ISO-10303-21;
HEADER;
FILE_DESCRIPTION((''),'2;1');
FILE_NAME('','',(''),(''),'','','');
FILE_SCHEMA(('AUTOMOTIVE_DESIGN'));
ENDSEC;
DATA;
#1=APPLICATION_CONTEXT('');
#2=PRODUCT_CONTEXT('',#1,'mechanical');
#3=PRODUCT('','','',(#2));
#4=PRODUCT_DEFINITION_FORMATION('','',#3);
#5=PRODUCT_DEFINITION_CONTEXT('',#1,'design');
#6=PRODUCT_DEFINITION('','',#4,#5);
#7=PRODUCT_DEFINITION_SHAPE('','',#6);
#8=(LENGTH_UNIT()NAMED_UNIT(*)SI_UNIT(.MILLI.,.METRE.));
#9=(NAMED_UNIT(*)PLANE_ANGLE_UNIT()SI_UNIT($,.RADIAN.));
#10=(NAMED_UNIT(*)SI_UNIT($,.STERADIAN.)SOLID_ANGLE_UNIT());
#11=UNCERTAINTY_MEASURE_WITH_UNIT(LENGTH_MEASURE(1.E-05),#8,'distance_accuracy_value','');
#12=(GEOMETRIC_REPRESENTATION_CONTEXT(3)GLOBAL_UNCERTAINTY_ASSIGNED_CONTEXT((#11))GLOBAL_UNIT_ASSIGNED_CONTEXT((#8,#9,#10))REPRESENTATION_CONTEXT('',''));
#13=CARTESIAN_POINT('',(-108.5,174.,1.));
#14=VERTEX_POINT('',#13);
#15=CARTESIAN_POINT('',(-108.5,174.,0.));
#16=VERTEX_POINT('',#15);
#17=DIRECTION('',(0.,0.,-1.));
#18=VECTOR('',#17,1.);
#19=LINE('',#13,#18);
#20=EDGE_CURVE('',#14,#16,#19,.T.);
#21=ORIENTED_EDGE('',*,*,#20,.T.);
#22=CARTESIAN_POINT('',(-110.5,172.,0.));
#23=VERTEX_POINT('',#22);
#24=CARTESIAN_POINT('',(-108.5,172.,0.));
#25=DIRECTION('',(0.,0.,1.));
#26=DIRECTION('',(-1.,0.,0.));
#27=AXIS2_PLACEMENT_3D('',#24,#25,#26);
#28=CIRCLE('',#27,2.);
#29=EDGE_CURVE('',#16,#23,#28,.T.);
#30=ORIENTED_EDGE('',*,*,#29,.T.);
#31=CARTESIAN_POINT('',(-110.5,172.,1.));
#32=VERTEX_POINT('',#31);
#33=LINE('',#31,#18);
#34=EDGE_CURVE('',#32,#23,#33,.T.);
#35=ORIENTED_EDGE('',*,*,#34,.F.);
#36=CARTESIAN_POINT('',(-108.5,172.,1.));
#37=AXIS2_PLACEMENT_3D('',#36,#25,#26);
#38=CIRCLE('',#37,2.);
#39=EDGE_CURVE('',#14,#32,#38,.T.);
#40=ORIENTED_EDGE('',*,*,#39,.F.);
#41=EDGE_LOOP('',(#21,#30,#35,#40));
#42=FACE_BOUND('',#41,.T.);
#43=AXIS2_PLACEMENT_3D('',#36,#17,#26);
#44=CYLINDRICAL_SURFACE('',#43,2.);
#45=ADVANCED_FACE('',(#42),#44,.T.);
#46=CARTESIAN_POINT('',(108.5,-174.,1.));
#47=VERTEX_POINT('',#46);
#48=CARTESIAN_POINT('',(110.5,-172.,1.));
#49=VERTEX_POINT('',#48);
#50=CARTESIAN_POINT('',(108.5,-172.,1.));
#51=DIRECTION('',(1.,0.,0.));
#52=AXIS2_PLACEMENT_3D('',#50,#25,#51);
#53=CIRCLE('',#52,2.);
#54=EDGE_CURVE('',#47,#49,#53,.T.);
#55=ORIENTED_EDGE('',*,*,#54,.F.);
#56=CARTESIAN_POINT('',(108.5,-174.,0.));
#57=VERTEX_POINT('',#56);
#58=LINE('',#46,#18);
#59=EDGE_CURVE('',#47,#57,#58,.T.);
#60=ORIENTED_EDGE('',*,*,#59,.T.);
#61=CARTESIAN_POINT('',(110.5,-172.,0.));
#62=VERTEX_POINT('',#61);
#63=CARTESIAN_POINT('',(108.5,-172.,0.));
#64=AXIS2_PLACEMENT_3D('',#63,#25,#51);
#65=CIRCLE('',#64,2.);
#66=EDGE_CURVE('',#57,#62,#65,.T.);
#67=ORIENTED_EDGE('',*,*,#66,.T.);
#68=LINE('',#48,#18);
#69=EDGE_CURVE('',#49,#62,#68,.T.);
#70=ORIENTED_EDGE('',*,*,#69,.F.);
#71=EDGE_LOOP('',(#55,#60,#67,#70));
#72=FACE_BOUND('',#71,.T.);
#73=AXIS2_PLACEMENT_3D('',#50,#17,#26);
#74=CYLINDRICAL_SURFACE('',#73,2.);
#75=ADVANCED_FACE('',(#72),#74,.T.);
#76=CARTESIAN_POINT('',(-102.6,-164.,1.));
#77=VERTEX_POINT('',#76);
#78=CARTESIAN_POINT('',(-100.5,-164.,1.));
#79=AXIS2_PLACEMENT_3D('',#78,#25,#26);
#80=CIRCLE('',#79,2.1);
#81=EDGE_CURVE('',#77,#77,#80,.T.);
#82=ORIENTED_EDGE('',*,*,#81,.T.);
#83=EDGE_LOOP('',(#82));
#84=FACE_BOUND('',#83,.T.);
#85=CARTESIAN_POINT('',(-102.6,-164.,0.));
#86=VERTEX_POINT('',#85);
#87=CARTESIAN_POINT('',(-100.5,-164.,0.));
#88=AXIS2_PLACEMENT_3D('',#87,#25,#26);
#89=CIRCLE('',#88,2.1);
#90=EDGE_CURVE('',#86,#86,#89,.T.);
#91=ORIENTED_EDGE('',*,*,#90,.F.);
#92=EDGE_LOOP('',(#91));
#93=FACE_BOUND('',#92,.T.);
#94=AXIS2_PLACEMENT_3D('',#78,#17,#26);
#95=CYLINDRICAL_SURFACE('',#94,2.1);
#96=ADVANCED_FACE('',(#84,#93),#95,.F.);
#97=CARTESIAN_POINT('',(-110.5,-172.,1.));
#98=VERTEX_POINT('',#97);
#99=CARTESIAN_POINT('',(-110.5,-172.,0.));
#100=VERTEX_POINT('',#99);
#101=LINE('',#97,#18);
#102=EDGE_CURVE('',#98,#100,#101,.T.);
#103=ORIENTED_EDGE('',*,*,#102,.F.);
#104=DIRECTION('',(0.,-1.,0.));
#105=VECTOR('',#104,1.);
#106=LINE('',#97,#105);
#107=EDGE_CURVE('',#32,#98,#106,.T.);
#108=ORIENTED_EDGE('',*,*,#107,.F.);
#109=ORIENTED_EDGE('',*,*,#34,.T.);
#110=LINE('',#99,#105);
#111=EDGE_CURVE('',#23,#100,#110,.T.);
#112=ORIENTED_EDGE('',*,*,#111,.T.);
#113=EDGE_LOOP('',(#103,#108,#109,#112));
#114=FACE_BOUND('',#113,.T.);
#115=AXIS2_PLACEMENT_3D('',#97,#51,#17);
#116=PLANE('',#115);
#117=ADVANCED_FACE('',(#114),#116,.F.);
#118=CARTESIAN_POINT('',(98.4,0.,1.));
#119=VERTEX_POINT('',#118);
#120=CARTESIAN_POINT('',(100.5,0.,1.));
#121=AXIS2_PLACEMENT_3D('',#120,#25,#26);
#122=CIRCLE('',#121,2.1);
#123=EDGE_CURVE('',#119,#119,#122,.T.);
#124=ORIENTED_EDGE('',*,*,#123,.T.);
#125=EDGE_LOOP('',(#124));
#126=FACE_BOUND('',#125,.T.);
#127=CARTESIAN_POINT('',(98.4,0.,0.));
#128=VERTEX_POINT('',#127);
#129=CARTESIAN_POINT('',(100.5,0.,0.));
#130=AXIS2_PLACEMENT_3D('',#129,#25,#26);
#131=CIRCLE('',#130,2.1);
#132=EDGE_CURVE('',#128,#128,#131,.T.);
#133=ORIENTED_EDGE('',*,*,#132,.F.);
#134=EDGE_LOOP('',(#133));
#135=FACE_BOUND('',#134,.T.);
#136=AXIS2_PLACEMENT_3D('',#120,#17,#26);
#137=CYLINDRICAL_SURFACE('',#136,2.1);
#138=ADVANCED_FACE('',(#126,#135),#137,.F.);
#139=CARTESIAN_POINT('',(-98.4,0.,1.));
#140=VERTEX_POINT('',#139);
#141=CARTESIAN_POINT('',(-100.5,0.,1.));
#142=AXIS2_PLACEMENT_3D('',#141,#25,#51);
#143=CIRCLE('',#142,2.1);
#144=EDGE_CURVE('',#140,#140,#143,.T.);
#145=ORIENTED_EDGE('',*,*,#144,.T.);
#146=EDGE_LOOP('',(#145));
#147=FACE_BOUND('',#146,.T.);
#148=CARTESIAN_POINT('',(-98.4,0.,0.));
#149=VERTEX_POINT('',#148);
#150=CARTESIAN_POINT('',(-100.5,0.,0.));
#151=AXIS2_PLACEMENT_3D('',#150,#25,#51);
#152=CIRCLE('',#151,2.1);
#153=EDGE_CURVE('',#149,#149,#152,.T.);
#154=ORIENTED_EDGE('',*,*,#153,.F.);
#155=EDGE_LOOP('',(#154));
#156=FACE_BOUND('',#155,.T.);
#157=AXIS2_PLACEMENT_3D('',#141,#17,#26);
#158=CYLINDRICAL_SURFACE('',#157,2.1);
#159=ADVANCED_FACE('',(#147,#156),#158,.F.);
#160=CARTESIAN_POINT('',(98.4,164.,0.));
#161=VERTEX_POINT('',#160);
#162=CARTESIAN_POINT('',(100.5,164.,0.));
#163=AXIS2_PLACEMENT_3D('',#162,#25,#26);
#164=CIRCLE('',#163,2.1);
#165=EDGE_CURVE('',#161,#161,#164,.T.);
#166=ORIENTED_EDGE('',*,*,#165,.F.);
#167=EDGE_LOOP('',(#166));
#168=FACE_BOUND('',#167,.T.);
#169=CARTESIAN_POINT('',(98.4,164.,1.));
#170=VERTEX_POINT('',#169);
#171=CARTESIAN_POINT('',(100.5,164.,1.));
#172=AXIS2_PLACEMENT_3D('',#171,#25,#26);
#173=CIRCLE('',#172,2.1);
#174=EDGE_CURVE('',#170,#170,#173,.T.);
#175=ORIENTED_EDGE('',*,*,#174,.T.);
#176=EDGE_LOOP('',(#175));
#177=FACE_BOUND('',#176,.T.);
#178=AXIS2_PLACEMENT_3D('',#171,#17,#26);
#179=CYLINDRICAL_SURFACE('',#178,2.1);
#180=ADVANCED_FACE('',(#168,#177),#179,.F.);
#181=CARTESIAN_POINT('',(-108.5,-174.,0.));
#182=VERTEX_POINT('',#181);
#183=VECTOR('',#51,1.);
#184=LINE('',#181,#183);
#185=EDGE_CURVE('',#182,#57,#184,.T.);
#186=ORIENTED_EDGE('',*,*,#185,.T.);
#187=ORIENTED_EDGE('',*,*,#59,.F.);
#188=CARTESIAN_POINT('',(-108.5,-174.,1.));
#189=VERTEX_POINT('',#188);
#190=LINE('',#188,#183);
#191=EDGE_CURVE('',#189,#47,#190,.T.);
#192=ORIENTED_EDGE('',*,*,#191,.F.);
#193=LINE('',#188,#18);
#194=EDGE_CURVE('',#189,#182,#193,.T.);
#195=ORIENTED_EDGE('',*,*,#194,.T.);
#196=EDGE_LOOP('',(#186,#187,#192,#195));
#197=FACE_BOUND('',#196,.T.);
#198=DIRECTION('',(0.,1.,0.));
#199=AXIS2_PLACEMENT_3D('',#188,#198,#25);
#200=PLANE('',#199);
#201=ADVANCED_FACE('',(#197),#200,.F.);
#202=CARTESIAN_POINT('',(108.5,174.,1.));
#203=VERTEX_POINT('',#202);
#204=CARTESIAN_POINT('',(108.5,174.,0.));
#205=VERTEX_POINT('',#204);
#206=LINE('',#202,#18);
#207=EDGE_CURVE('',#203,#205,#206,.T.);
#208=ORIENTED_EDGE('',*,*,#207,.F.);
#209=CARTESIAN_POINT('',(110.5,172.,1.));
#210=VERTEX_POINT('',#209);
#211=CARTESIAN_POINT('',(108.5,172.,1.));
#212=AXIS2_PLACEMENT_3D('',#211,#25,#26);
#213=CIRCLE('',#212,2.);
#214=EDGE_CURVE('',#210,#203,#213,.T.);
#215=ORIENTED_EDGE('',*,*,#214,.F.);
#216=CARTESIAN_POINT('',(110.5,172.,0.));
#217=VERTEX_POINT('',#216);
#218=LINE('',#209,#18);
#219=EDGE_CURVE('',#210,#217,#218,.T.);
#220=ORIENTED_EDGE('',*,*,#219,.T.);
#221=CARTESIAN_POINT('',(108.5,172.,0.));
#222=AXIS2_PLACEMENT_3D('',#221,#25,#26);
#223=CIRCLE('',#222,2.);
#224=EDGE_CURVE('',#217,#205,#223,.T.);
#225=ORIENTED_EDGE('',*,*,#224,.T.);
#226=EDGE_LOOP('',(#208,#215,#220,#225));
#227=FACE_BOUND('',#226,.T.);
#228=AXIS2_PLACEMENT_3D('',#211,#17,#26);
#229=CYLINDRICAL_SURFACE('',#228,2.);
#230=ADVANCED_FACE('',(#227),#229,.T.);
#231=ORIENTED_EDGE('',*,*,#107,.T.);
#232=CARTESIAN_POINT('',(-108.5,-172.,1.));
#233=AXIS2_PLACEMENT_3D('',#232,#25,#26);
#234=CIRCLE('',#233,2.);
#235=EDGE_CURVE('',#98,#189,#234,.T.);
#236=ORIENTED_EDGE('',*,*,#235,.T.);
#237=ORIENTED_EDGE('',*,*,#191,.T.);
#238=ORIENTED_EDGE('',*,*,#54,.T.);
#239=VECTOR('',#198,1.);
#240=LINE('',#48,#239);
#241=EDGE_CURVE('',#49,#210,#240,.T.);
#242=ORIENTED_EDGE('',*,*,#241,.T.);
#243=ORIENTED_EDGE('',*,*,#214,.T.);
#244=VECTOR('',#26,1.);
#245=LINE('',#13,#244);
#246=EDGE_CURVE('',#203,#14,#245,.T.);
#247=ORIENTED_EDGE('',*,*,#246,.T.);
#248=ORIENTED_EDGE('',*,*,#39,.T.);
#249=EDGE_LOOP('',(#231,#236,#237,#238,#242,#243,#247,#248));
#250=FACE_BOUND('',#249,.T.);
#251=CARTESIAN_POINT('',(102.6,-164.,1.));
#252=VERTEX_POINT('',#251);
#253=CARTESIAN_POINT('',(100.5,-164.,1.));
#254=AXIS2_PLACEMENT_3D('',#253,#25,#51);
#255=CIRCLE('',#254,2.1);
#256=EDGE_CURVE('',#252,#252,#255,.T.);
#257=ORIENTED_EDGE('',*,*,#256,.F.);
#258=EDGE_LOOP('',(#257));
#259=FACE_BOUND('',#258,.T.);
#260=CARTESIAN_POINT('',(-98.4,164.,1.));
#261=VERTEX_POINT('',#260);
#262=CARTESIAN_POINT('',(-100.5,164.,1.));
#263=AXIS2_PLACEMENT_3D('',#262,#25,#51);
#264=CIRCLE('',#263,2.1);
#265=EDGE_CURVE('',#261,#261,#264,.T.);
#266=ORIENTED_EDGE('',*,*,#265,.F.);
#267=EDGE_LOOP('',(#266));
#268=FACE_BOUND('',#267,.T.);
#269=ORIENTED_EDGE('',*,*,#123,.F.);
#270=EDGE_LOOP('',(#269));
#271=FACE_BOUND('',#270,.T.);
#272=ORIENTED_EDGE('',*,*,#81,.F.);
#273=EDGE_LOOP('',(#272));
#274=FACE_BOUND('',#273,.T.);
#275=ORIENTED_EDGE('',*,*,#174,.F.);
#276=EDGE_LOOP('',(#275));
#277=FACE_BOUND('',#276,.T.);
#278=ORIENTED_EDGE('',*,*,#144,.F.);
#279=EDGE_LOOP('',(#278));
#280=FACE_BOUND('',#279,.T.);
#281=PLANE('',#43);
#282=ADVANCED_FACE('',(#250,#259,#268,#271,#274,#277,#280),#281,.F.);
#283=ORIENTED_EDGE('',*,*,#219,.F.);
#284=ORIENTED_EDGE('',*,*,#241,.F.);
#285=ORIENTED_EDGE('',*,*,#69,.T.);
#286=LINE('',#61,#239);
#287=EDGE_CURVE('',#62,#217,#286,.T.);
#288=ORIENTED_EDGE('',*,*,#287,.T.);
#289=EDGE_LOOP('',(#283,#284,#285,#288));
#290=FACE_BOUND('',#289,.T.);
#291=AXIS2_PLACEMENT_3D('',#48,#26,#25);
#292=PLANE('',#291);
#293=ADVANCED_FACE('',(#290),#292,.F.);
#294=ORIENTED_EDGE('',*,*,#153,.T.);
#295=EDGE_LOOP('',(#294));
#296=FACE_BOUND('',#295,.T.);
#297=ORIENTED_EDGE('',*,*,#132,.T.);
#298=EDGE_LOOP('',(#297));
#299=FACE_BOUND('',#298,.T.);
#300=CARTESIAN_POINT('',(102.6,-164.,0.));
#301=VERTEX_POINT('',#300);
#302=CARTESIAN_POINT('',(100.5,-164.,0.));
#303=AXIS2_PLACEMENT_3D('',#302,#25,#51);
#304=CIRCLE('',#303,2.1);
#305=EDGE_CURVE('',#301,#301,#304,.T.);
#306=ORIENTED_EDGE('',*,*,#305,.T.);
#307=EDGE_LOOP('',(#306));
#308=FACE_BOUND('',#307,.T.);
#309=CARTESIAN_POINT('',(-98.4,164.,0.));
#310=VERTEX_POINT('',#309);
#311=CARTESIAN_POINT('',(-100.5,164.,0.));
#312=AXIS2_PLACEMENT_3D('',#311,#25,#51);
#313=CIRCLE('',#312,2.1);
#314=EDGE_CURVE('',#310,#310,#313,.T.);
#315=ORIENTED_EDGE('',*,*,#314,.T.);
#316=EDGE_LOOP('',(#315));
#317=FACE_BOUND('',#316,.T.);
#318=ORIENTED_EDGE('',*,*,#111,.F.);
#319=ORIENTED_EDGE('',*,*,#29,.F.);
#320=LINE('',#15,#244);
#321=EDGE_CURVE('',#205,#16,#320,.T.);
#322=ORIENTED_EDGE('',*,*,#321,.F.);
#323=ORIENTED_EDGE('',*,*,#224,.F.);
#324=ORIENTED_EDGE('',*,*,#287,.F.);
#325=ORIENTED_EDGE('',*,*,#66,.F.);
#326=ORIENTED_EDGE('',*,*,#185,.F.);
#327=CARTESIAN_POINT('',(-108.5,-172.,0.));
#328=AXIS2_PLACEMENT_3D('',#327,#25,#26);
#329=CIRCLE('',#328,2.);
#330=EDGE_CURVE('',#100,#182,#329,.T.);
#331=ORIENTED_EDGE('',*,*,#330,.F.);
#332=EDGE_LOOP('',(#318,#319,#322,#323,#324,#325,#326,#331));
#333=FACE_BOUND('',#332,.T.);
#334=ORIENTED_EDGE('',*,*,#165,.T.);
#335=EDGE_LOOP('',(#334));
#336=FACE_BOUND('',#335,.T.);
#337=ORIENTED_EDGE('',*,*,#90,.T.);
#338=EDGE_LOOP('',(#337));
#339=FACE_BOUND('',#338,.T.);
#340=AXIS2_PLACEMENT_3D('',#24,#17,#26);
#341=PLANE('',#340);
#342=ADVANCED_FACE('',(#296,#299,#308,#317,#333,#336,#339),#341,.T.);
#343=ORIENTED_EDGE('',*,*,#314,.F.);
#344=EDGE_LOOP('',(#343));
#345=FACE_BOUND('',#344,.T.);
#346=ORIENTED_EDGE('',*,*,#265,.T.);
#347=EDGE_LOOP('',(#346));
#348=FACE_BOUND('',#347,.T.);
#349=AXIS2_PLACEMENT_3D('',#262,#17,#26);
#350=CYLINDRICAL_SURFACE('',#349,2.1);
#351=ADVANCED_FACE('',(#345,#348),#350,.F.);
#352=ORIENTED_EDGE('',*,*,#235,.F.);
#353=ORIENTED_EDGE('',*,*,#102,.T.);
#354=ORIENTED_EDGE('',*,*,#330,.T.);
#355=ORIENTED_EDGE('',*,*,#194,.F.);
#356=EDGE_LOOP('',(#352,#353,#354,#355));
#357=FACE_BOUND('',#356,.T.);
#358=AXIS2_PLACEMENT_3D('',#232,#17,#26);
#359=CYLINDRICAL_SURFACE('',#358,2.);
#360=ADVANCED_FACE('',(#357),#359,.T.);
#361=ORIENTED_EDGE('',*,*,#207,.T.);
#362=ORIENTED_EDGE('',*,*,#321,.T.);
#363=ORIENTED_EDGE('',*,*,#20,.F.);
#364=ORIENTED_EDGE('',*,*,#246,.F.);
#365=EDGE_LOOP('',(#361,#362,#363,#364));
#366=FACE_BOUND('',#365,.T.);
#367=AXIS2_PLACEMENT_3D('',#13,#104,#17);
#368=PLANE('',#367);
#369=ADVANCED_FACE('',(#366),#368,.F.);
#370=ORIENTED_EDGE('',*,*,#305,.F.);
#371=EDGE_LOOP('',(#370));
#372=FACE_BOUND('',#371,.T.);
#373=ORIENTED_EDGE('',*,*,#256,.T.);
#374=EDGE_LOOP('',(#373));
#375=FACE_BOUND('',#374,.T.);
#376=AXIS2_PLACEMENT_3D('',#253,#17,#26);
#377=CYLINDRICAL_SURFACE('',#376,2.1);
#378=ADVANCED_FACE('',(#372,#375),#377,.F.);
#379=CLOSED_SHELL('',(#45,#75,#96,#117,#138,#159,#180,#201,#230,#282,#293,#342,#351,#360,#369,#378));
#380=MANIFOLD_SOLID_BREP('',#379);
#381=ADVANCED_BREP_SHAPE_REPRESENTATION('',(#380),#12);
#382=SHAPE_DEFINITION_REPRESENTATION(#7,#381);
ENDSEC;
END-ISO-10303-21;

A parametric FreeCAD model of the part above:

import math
import FreeCAD as App
import Part
import Sketcher
Q = App.Units.Quantity

doc = App.newDocument("Part")
body = doc.addObject("PartDesign::Body", "Body")

# Sketch on XY plane
sketch1 = body.newObject("Sketcher::SketchObject", "Sketch")
sketch1.AttachmentSupport = (doc.getObject("XY_Plane"), [""])
sketch1.MapMode = "FlatFace"
sketch1.addGeometry([
    Part.LineSegment(App.Vector(-108.5, -174, 0), App.Vector(108.5, -174, 0)),  # 0
    Part.ArcOfCircle(Part.Circle(App.Vector(108.5, -172, 0), App.Vector(0, 0, 1), 2), math.radians(-90), math.radians(0)),  # 1
    Part.LineSegment(App.Vector(110.5, -172, 0), App.Vector(110.5, 172, 0)),  # 2
    Part.ArcOfCircle(Part.Circle(App.Vector(108.5, 172, 0), App.Vector(0, 0, 1), 2), math.radians(0), math.radians(90)),  # 3
    Part.LineSegment(App.Vector(108.5, 174, 0), App.Vector(-108.5, 174, 0)),  # 4
    Part.ArcOfCircle(Part.Circle(App.Vector(-108.5, 172, 0), App.Vector(0, 0, 1), 2), math.radians(90), math.radians(180)),  # 5
    Part.LineSegment(App.Vector(-110.5, 172, 0), App.Vector(-110.5, -172, 0)),  # 6
    Part.ArcOfCircle(Part.Circle(App.Vector(-108.5, -172, 0), App.Vector(0, 0, 1), 2), math.radians(-180), math.radians(-90)),  # 7
    Part.Circle(App.Vector(-100.5, -164, 0), App.Vector(0, 0, 1), 2.1),  # 8
    Part.Circle(App.Vector(100.5, -164, 0), App.Vector(0, 0, 1), 2.1),  # 9
    Part.Circle(App.Vector(-100.5, 0, 0), App.Vector(0, 0, 1), 2.1),  # 10
    Part.Circle(App.Vector(-100.5, 164, 0), App.Vector(0, 0, 1), 2.1),  # 11
    Part.Circle(App.Vector(100.5, 0, 0), App.Vector(0, 0, 1), 2.1),  # 12
    Part.Circle(App.Vector(100.5, 164, 0), App.Vector(0, 0, 1), 2.1),  # 13
], False)
sketch1.addConstraint([
    Sketcher.Constraint("Tangent", 0, 2, 1, 1),
    Sketcher.Constraint("Tangent", 1, 2, 2, 1),
    Sketcher.Constraint("Tangent", 2, 2, 3, 1),
    Sketcher.Constraint("Tangent", 3, 2, 4, 1),
    Sketcher.Constraint("Tangent", 4, 2, 5, 1),
    Sketcher.Constraint("Tangent", 5, 2, 6, 1),
    Sketcher.Constraint("Tangent", 6, 2, 7, 1),
    Sketcher.Constraint("Tangent", 7, 2, 0, 1),
    Sketcher.Constraint("Horizontal", 0),
    Sketcher.Constraint("Vertical", 2),
    Sketcher.Constraint("Horizontal", 4),
    Sketcher.Constraint("Vertical", 6),
    Sketcher.Constraint("Equal", 1, 3),
    Sketcher.Constraint("Equal", 3, 5),
    Sketcher.Constraint("Equal", 5, 7),
    Sketcher.Constraint("Equal", 8, 9),
    Sketcher.Constraint("Equal", 9, 10),
    Sketcher.Constraint("Equal", 10, 11),
    Sketcher.Constraint("Equal", 11, 12),
    Sketcher.Constraint("Equal", 12, 13),
    Sketcher.Constraint("Symmetric", 1, 3, 5, 3, -1, 1),
    Sketcher.Constraint("Symmetric", 9, 3, 11, 3, -1, 1),
    Sketcher.Constraint("Symmetric", 10, 3, 12, 3, -1, 1),
    Sketcher.Constraint("Symmetric", 8, 3, 13, 3, -1, 1),
    Sketcher.Constraint("Symmetric", 8, 3, 9, 3, -2),
    Sketcher.Constraint("PointOnObject", 10, 3, -1),
    Sketcher.Constraint("Vertical", 8, 3, 10, 3),
    Sketcher.Constraint("Radius", 1, Q("2 mm")),
    Sketcher.Constraint("Diameter", 8, Q("4.2 mm")),
    Sketcher.Constraint("DistanceX", 0, 1, 0, 2, Q("217 mm")),
    Sketcher.Constraint("DistanceY", 2, 1, 2, 2, Q("344 mm")),
    Sketcher.Constraint("DistanceY", 8, 3, -1, 1, Q("164 mm")),
    Sketcher.Constraint("DistanceX", 7, 3, 8, 3, Q("8 mm")),
])
pad1 = body.newObject("PartDesign::Pad", "Pad")
pad1.Profile = sketch1
pad1.Length = 1

doc.recompute()
